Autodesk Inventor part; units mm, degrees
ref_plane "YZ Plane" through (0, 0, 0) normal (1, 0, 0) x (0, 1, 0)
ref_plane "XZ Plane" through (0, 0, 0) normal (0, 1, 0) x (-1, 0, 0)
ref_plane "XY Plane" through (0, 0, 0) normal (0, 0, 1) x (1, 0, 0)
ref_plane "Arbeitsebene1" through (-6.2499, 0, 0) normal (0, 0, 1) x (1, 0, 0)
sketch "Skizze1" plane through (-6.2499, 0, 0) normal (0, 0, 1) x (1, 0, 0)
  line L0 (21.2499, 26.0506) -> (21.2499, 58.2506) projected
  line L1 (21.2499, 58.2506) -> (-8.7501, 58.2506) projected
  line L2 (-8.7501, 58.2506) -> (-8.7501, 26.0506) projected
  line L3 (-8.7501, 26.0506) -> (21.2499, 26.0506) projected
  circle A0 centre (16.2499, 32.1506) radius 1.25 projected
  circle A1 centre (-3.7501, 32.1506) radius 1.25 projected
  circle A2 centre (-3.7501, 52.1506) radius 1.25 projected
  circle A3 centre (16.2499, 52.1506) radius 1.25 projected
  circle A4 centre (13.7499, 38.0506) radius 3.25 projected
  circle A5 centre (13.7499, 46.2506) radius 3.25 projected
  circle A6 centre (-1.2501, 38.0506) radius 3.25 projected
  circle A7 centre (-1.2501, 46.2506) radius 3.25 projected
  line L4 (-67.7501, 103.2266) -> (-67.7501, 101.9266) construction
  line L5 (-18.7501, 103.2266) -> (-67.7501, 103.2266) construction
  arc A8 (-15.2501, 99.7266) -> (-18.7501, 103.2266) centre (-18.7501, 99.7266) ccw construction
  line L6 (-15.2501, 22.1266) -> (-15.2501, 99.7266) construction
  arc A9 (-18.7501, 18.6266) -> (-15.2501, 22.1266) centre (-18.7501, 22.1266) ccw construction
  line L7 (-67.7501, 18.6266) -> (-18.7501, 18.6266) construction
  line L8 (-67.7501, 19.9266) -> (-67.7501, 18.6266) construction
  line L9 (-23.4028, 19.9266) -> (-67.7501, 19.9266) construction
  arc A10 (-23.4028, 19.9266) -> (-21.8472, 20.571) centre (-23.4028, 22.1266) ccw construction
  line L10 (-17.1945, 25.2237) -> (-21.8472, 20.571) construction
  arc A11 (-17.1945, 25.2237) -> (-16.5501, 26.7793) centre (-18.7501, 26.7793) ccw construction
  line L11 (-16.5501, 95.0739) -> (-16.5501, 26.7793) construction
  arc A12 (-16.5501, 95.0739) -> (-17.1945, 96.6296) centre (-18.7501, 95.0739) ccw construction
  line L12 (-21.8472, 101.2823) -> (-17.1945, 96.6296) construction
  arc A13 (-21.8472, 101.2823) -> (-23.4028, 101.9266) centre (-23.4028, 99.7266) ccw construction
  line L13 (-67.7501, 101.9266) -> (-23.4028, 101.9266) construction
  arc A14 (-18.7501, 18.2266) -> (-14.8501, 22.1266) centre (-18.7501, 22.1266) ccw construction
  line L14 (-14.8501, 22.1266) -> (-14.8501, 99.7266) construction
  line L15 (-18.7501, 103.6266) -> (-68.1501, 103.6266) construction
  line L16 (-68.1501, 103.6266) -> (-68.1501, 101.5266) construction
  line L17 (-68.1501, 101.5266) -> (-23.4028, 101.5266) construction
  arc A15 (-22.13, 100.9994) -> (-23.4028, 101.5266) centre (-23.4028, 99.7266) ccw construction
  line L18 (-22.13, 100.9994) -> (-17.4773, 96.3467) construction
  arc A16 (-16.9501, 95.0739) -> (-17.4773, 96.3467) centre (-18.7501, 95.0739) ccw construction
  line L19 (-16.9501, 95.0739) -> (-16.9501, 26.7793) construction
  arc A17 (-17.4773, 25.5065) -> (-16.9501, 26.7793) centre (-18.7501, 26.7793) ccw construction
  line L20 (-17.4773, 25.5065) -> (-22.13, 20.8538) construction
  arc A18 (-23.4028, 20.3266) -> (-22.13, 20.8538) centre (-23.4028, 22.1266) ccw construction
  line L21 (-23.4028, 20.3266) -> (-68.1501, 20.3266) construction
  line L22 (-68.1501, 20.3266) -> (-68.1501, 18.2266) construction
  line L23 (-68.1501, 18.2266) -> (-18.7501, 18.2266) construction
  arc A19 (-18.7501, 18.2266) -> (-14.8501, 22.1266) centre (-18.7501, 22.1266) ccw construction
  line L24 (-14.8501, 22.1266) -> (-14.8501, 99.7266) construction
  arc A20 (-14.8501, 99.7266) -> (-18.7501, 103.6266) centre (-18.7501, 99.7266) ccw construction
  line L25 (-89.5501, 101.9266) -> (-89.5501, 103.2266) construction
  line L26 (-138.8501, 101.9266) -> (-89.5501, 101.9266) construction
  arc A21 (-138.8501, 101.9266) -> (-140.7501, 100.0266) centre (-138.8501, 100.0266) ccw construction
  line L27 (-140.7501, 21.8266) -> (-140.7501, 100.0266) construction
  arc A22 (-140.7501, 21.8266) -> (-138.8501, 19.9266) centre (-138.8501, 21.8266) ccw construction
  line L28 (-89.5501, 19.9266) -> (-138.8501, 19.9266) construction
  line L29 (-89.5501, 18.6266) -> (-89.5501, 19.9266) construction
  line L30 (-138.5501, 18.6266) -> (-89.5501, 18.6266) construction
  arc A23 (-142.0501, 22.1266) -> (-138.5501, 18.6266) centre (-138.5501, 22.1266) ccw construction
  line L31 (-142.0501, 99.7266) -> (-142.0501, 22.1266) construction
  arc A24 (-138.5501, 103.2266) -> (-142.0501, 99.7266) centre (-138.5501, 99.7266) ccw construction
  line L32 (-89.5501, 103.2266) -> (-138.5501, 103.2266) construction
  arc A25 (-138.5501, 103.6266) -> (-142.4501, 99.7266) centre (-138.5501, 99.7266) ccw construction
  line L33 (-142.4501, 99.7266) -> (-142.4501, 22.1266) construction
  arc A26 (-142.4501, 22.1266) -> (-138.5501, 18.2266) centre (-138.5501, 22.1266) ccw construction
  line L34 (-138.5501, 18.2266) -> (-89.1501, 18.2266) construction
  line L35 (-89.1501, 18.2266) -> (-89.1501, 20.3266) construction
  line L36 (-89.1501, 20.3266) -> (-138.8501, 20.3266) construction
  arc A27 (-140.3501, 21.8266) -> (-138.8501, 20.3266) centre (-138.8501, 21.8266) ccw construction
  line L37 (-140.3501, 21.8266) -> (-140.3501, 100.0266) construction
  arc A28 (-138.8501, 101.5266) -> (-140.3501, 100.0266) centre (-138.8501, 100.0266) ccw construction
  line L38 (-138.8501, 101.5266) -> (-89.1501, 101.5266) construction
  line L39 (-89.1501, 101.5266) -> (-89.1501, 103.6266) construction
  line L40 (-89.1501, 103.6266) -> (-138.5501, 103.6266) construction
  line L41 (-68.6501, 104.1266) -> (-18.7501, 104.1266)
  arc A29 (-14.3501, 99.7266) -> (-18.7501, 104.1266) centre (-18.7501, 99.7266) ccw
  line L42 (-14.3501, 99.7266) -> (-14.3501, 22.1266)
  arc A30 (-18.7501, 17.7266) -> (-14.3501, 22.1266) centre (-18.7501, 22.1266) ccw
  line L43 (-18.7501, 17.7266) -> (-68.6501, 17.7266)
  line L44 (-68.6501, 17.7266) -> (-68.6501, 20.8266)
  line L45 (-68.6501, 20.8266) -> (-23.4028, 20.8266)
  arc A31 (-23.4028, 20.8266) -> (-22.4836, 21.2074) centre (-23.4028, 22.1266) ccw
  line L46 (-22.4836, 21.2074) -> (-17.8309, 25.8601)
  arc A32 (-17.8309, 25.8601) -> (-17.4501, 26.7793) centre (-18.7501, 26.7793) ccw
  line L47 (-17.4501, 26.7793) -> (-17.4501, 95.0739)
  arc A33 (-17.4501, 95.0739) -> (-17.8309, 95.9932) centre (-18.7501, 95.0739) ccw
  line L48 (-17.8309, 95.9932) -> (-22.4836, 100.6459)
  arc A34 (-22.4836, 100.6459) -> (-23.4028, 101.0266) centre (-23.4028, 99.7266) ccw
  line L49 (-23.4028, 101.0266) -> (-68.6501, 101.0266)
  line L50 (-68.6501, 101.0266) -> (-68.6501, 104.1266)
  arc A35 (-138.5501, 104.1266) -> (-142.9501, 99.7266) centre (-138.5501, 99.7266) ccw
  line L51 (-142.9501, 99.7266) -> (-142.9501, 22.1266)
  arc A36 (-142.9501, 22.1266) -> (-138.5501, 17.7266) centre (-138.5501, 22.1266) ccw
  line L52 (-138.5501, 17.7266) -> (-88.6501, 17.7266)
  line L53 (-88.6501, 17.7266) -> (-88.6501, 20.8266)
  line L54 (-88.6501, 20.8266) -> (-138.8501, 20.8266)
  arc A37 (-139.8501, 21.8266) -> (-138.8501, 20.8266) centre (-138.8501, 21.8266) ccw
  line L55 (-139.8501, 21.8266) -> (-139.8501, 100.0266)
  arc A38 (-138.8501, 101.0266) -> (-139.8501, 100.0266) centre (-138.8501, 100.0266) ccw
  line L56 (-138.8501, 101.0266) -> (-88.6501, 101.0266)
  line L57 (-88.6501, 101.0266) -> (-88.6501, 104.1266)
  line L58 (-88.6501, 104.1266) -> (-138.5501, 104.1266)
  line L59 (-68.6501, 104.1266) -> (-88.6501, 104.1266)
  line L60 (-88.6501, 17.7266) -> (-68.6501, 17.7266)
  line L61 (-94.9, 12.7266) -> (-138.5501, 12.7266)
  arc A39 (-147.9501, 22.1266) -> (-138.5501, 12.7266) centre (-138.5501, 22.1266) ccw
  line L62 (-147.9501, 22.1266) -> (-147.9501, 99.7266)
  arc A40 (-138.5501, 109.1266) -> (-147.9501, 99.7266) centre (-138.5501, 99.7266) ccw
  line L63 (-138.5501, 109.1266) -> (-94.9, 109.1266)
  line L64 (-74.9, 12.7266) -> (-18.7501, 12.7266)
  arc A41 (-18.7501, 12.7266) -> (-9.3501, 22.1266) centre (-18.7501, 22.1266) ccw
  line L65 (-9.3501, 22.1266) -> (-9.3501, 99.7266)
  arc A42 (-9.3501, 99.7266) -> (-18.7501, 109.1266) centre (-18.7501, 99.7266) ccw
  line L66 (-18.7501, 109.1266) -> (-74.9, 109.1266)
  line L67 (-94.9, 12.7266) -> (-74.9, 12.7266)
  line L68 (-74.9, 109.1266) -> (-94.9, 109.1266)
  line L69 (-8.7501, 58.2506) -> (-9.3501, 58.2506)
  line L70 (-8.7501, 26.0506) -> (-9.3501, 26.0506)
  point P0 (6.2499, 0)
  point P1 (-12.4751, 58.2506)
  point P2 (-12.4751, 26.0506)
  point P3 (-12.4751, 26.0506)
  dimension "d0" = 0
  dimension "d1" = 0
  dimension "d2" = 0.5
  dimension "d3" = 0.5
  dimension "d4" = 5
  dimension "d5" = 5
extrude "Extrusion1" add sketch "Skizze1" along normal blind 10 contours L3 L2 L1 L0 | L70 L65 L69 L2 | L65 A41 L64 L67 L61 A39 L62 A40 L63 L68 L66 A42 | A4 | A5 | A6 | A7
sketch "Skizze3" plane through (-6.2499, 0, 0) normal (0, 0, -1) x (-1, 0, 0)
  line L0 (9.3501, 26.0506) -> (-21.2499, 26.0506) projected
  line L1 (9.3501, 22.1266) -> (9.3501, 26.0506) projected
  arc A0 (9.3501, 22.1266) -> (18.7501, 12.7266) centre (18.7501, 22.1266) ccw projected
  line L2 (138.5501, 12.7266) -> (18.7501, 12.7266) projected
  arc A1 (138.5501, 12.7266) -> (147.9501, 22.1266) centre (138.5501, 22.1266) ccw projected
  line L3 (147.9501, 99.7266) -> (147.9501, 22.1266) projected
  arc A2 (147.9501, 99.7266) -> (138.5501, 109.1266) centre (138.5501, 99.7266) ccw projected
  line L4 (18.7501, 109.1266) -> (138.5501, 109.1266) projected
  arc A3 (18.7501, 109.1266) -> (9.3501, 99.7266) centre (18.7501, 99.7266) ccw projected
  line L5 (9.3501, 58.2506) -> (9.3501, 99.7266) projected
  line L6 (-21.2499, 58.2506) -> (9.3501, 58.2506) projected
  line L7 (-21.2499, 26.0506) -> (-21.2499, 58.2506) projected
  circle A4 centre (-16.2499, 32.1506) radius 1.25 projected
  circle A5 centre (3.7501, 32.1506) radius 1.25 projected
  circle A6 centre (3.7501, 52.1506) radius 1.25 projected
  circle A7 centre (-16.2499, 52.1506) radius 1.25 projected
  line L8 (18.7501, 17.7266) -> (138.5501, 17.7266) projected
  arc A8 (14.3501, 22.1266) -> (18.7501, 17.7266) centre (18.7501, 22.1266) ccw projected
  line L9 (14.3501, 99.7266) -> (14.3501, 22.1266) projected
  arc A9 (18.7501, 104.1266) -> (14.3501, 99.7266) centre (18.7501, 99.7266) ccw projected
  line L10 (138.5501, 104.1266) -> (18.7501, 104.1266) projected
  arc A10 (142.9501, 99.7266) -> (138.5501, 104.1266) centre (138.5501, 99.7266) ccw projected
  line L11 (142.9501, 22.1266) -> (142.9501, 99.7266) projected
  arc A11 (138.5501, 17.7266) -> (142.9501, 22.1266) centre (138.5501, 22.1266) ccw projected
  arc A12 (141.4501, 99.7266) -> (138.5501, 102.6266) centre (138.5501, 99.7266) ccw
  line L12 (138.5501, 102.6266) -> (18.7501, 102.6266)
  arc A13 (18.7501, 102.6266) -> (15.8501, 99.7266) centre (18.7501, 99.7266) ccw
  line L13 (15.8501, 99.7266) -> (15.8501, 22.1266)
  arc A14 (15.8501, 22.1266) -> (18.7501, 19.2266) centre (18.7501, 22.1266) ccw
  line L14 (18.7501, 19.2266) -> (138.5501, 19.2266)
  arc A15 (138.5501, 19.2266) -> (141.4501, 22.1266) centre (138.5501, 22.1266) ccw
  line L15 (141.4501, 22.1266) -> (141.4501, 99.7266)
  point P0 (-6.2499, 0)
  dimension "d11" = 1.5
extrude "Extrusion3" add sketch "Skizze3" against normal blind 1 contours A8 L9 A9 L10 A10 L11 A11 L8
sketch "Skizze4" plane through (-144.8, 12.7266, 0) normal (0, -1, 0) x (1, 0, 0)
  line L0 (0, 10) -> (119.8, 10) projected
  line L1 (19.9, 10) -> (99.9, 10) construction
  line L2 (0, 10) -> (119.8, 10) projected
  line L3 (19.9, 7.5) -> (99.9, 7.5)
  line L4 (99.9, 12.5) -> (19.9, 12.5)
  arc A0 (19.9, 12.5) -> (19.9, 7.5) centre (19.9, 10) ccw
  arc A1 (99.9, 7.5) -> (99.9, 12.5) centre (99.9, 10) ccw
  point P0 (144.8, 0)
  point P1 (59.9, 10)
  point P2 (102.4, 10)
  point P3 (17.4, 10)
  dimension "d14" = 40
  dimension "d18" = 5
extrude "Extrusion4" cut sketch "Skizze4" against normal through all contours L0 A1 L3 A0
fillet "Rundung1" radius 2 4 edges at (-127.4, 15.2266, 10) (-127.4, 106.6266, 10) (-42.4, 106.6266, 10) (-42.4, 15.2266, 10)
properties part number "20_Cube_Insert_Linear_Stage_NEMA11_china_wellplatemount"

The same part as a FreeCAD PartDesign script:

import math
import FreeCAD as App
import Part
import Sketcher
Q = App.Units.Quantity


def edges_at(feature, points):
    """Names of the edges that pass closest to the given points."""
    edges = feature.Shape.Edges
    near = lambda p: min(range(len(edges)), key=lambda i: edges[i].distToShape(Part.Vertex(*p))[0])
    return sorted({f"Edge{near(p) + 1}" for p in points})

doc = App.newDocument("Part")
params = doc.addObject("Spreadsheet::Sheet", "Params")
for row, (alias, value) in enumerate([
    ("sketch1_diameter", "2.5 mm"),
    ("sketch1_radius", "9.4 mm"),
    ("sketch1_width", "30.6 mm"),
    ("sketch1_width2", "119.8 mm"),
    ("sketch1_height", "32.2 mm"),
    ("pad1_length", "10 mm"),
    ("sketch2_radius", "4.4 mm"),
    ("sketch2_radius2", "2.9 mm"),
    ("sketch2_width", "119.8 mm"),
    ("sketch2_height", "77.6 mm"),
    ("pad2_length", "1 mm"),
    ("sketch3_radius", "2.5 mm"),
    ("sketch3_width", "85 mm"),
    ("fillet_radius", "2 mm"),
], start=1):
    params.set(f"A{row}", alias)
    params.set(f"B{row}", "=" + value)
    params.setAlias(f"B{row}", alias)

body = doc.addObject("PartDesign::Body", "Body")

# Sketch on XY plane
sketch1 = body.newObject("Sketcher::SketchObject", "Sketch")
sketch1.AttachmentSupport = (doc.getObject("XY_Plane"), [""])
sketch1.MapMode = "FlatFace"
sketch1.addGeometry([
    Part.LineSegment(App.Vector(15, 26.1, 0), App.Vector(15, 58.3, 0)),  # 0
    Part.LineSegment(App.Vector(15, 58.3, 0), App.Vector(-15.6, 58.3, 0)),  # 1
    Part.LineSegment(App.Vector(-15.6, 58.3, 0), App.Vector(-15.6, 99.7, 0)),  # 2
    Part.ArcOfCircle(Part.Circle(App.Vector(-25, 99.7, 0), App.Vector(0, 0, 1), 9.4), math.radians(0), math.radians(90)),  # 3
    Part.LineSegment(App.Vector(-25, 109.1, 0), App.Vector(-144.8, 109.1, 0)),  # 4
    Part.ArcOfCircle(Part.Circle(App.Vector(-144.8, 99.7, 0), App.Vector(0, 0, 1), 9.4), math.radians(90), math.radians(180)),  # 5
    Part.LineSegment(App.Vector(-154.2, 99.7, 0), App.Vector(-154.2, 22.1, 0)),  # 6
    Part.ArcOfCircle(Part.Circle(App.Vector(-144.8, 22.1, 0), App.Vector(0, 0, 1), 9.4), math.radians(180), math.radians(270)),  # 7
    Part.LineSegment(App.Vector(-144.8, 12.7, 0), App.Vector(-25, 12.7, 0)),  # 8
    Part.ArcOfCircle(Part.Circle(App.Vector(-25, 22.1, 0), App.Vector(0, 0, 1), 9.4), math.radians(-90), math.radians(0)),  # 9
    Part.LineSegment(App.Vector(-15.6, 22.1, 0), App.Vector(-15.6, 26.1, 0)),  # 10
    Part.LineSegment(App.Vector(-15.6, 26.1, 0), App.Vector(15, 26.1, 0)),  # 11
    Part.Circle(App.Vector(-10, 32.2, 0), App.Vector(0, 0, 1), 1.2),  # 12
    Part.Circle(App.Vector(10, 32.2, 0), App.Vector(0, 0, 1), 1.2),  # 13
    Part.Circle(App.Vector(-10, 52.2, 0), App.Vector(0, 0, 1), 1.2),  # 14
    Part.Circle(App.Vector(10, 52.2, 0), App.Vector(0, 0, 1), 1.2),  # 15
    Part.ArcOfCircle(Part.Circle(App.Vector(-25, 99.7, 0), App.Vector(0, 0, 1), 4.4), math.radians(0), math.radians(90)),  # 16
    Part.LineSegment(App.Vector(-20.6, 99.7, 0), App.Vector(-20.6, 22.1, 0)),  # 17
    Part.ArcOfCircle(Part.Circle(App.Vector(-25, 22.1, 0), App.Vector(0, 0, 1), 4.4), math.radians(-90), math.radians(0)),  # 18
    Part.LineSegment(App.Vector(-25, 17.7, 0), App.Vector(-144.8, 17.7, 0)),  # 19
    Part.ArcOfCircle(Part.Circle(App.Vector(-144.8, 22.1, 0), App.Vector(0, 0, 1), 4.4), math.radians(180), math.radians(270)),  # 20
    Part.LineSegment(App.Vector(-149.2, 22.1, 0), App.Vector(-149.2, 99.7, 0)),  # 21
    Part.ArcOfCircle(Part.Circle(App.Vector(-144.8, 99.7, 0), App.Vector(0, 0, 1), 4.4), math.radians(90), math.radians(180)),  # 22
    Part.LineSegment(App.Vector(-144.8, 104.1, 0), App.Vector(-25, 104.1, 0)),  # 23
], False)
sketch1.addConstraint([
    Sketcher.Constraint("Coincident", 0, 2, 1, 1),
    Sketcher.Constraint("Coincident", 1, 2, 2, 1),
    Sketcher.Constraint("Tangent", 2, 2, 3, 1),
    Sketcher.Constraint("Tangent", 3, 2, 4, 1),
    Sketcher.Constraint("Tangent", 4, 2, 5, 1),
    Sketcher.Constraint("Tangent", 5, 2, 6, 1),
    Sketcher.Constraint("Tangent", 6, 2, 7, 1),
    Sketcher.Constraint("Tangent", 7, 2, 8, 1),
    Sketcher.Constraint("Tangent", 8, 2, 9, 1),
    Sketcher.Constraint("Tangent", 9, 2, 10, 1),
    Sketcher.Constraint("Coincident", 10, 2, 11, 1),
    Sketcher.Constraint("Coincident", 11, 2, 0, 1),
    Sketcher.Constraint("Tangent", 16, 1, 17, 1),
    Sketcher.Constraint("Tangent", 17, 2, 18, 2),
    Sketcher.Constraint("Tangent", 18, 1, 19, 1),
    Sketcher.Constraint("Tangent", 19, 2, 20, 2),
    Sketcher.Constraint("Tangent", 20, 1, 21, 1),
    Sketcher.Constraint("Tangent", 21, 2, 22, 2),
    Sketcher.Constraint("Tangent", 22, 1, 23, 1),
    Sketcher.Constraint("Tangent", 23, 2, 16, 2),
    Sketcher.Constraint("Vertical", 0),
    Sketcher.Constraint("Horizontal", 1),
    Sketcher.Constraint("Vertical", 2),
    Sketcher.Constraint("Horizontal", 4),
    Sketcher.Constraint("Vertical", 6),
    Sketcher.Constraint("Horizontal", 8),
    Sketcher.Constraint("Vertical", 10),
    Sketcher.Constraint("Horizontal", 11),
    Sketcher.Constraint("Vertical", 17),
    Sketcher.Constraint("Horizontal", 19),
    Sketcher.Constraint("Vertical", 21),
    Sketcher.Constraint("Horizontal", 23),
    Sketcher.Constraint("Coincident", 16, 3, 3, 3),
    Sketcher.Constraint("Coincident", 18, 3, 9, 3),
    Sketcher.Constraint("Coincident", 20, 3, 7, 3),
    Sketcher.Constraint("Coincident", 22, 3, 5, 3),
    Sketcher.Constraint("Equal", 3, 5),
    Sketcher.Constraint("Equal", 5, 7),
    Sketcher.Constraint("Equal", 7, 9),
    Sketcher.Constraint("Equal", 12, 13),
    Sketcher.Constraint("Equal", 13, 14),
    Sketcher.Constraint("Equal", 14, 15),
    Sketcher.Constraint("Symmetric", 12, 3, 13, 3, -2),
    Sketcher.Constraint("Symmetric", 14, 3, 15, 3, -2),
    Sketcher.Constraint("Vertical", 12, 3, 14, 3),
    Sketcher.Constraint("DistanceX", 15, 3, 0, 2, Q("5 mm")),
    Sketcher.Constraint("DistanceX", 16, 1, 2, 2, Q("5 mm")),
    Sketcher.Constraint("Diameter", 12, Q("2.5 mm")),
    Sketcher.Constraint("Radius", 3, Q("9.4 mm")),
    Sketcher.Constraint("DistanceX", 1, 2, 1, 1, Q("30.6 mm")),
    Sketcher.Constraint("DistanceX", 4, 2, 4, 1, Q("119.8 mm")),
    Sketcher.Constraint("DistanceY", 0, 1, 0, 2, Q("32.2 mm")),
    Sketcher.Constraint("DistanceY", 6, 2, 6, 1, Q("77.6 mm")),
    Sketcher.Constraint("DistanceX", 3, 3, -1, 1, Q("25 mm")),
    Sketcher.Constraint("DistanceY", 12, 3, 14, 3, Q("20 mm")),
    Sketcher.Constraint("DistanceY", 15, 3, 0, 2, Q("6.1 mm")),
    Sketcher.Constraint("DistanceY", 2, 1, 2, 2, Q("41.476 mm")),
    Sketcher.Constraint("DistanceY", -1, 1, 3, 3, Q("99.7266 mm")),
])
sketch1.setExpression("Constraints[47]", "Params.sketch1_diameter")
sketch1.setExpression("Constraints[48]", "Params.sketch1_radius")
sketch1.setExpression("Constraints[49]", "Params.sketch1_width")
sketch1.setExpression("Constraints[50]", "Params.sketch1_width2")
sketch1.setExpression("Constraints[51]", "Params.sketch1_height")
pad1 = body.newObject("PartDesign::Pad", "Pad")
pad1.Profile = sketch1
pad1.setExpression("Length", "Params.pad1_length")

# Sketch on XY plane
sketch2 = body.newObject("Sketcher::SketchObject", "Sketch001")
sketch2.AttachmentSupport = (doc.getObject("XY_Plane"), [""])
sketch2.MapMode = "FlatFace"
sketch2.addGeometry([
    Part.ArcOfCircle(Part.Circle(App.Vector(-25, 22.1, 0), App.Vector(0, 0, 1), 4.4), math.radians(-90), math.radians(0)),  # 0
    Part.LineSegment(App.Vector(-25, 17.7, 0), App.Vector(-144.8, 17.7, 0)),  # 1
    Part.ArcOfCircle(Part.Circle(App.Vector(-144.8, 22.1, 0), App.Vector(0, 0, 1), 4.4), math.radians(180), math.radians(270)),  # 2
    Part.LineSegment(App.Vector(-149.2, 22.1, 0), App.Vector(-149.2, 99.7, 0)),  # 3
    Part.ArcOfCircle(Part.Circle(App.Vector(-144.8, 99.7, 0), App.Vector(0, 0, 1), 4.4), math.radians(90), math.radians(180)),  # 4
    Part.LineSegment(App.Vector(-144.8, 104.1, 0), App.Vector(-25, 104.1, 0)),  # 5
    Part.ArcOfCircle(Part.Circle(App.Vector(-25, 99.7, 0), App.Vector(0, 0, 1), 4.4), math.radians(0), math.radians(90)),  # 6
    Part.LineSegment(App.Vector(-20.6, 99.7, 0), App.Vector(-20.6, 22.1, 0)),  # 7
    Part.ArcOfCircle(Part.Circle(App.Vector(-144.8, 99.7, 0), App.Vector(0, 0, 1), 2.9), math.radians(90), math.radians(180)),  # 8
    Part.LineSegment(App.Vector(-147.7, 99.7, 0), App.Vector(-147.7, 22.1, 0)),  # 9
    Part.ArcOfCircle(Part.Circle(App.Vector(-144.8, 22.1, 0), App.Vector(0, 0, 1), 2.9), math.radians(180), math.radians(270)),  # 10
    Part.LineSegment(App.Vector(-144.8, 19.2, 0), App.Vector(-25, 19.2, 0)),  # 11
    Part.ArcOfCircle(Part.Circle(App.Vector(-25, 22.1, 0), App.Vector(0, 0, 1), 2.9), math.radians(-90), math.radians(0)),  # 12
    Part.LineSegment(App.Vector(-22.1, 22.1, 0), App.Vector(-22.1, 99.7, 0)),  # 13
    Part.ArcOfCircle(Part.Circle(App.Vector(-25, 99.7, 0), App.Vector(0, 0, 1), 2.9), math.radians(0), math.radians(90)),  # 14
    Part.LineSegment(App.Vector(-25, 102.6, 0), App.Vector(-144.8, 102.6, 0)),  # 15
], False)
sketch2.addConstraint([
    Sketcher.Constraint("Tangent", 0, 1, 1, 1),
    Sketcher.Constraint("Tangent", 1, 2, 2, 2),
    Sketcher.Constraint("Tangent", 2, 1, 3, 1),
    Sketcher.Constraint("Tangent", 3, 2, 4, 2),
    Sketcher.Constraint("Tangent", 4, 1, 5, 1),
    Sketcher.Constraint("Tangent", 5, 2, 6, 2),
    Sketcher.Constraint("Tangent", 6, 1, 7, 1),
    Sketcher.Constraint("Tangent", 7, 2, 0, 2),
    Sketcher.Constraint("Tangent", 8, 2, 9, 1),
    Sketcher.Constraint("Tangent", 9, 2, 10, 1),
    Sketcher.Constraint("Tangent", 10, 2, 11, 1),
    Sketcher.Constraint("Tangent", 11, 2, 12, 1),
    Sketcher.Constraint("Tangent", 12, 2, 13, 1),
    Sketcher.Constraint("Tangent", 13, 2, 14, 1),
    Sketcher.Constraint("Tangent", 14, 2, 15, 1),
    Sketcher.Constraint("Tangent", 15, 2, 8, 1),
    Sketcher.Constraint("Horizontal", 1),
    Sketcher.Constraint("Vertical", 3),
    Sketcher.Constraint("Horizontal", 5),
    Sketcher.Constraint("Vertical", 7),
    Sketcher.Constraint("Vertical", 9),
    Sketcher.Constraint("Horizontal", 11),
    Sketcher.Constraint("Vertical", 13),
    Sketcher.Constraint("Horizontal", 15),
    Sketcher.Constraint("Coincident", 8, 3, 4, 3),
    Sketcher.Constraint("Coincident", 10, 3, 2, 3),
    Sketcher.Constraint("Coincident", 12, 3, 0, 3),
    Sketcher.Constraint("Equal", 0, 2),
    Sketcher.Constraint("Equal", 2, 4),
    Sketcher.Constraint("Equal", 4, 6),
    Sketcher.Constraint("Equal", 12, 14),
    Sketcher.Constraint("Radius", 0, Q("4.4 mm")),
    Sketcher.Constraint("Radius", 8, Q("2.9 mm")),
    Sketcher.Constraint("DistanceX", 1, 2, 1, 1, Q("119.8 mm")),
    Sketcher.Constraint("DistanceY", 3, 1, 3, 2, Q("77.6 mm")),
    Sketcher.Constraint("DistanceX", 0, 3, -1, 1, Q("25 mm")),
    Sketcher.Constraint("DistanceY", -1, 1, 0, 3, Q("22.1266 mm")),
])
sketch2.setExpression("Constraints[31]", "Params.sketch2_radius")
sketch2.setExpression("Constraints[32]", "Params.sketch2_radius2")
sketch2.setExpression("Constraints[33]", "Params.sketch2_width")
sketch2.setExpression("Constraints[34]", "Params.sketch2_height")
pad2 = body.newObject("PartDesign::Pad", "Pad001")
pad2.Profile = sketch2
pad2.setExpression("Length", "Params.pad2_length")

# Sketch on XZ plane
sketch3 = body.newObject("Sketcher::SketchObject", "Sketch002")
sketch3.AttachmentSupport = (doc.getObject("XZ_Plane"), [""])
sketch3.MapMode = "FlatFace"
sketch3.AttachmentOffset = App.Placement(App.Vector(0, 0, -12.7266), App.Rotation())
sketch3.addGeometry([
    Part.LineSegment(App.Vector(-42.4, 10, 0), App.Vector(-127.4, 10, 0)),
    Part.ArcOfCircle(Part.Circle(App.Vector(-124.9, 10, 0), App.Vector(0, 0, 1), 2.5), math.radians(180), math.radians(270)),
    Part.LineSegment(App.Vector(-124.9, 7.5, 0), App.Vector(-44.9, 7.5, 0)),
    Part.ArcOfCircle(Part.Circle(App.Vector(-44.9, 10, 0), App.Vector(0, 0, 1), 2.5), math.radians(-90), math.radians(0)),
], False)
sketch3.addConstraint([
    Sketcher.Constraint("Coincident", 0, 2, 1, 1),
    Sketcher.Constraint("Tangent", 1, 2, 2, 1),
    Sketcher.Constraint("Tangent", 2, 2, 3, 1),
    Sketcher.Constraint("Coincident", 3, 2, 0, 1),
    Sketcher.Constraint("Horizontal", 0),
    Sketcher.Constraint("Horizontal", 2),
    Sketcher.Constraint("Equal", 1, 3),
    Sketcher.Constraint("Horizontal", 3, 3, 0, 2),
    Sketcher.Constraint("Radius", 1, Q("2.5 mm")),
    Sketcher.Constraint("DistanceX", 0, 2, 0, 1, Q("85 mm")),
    Sketcher.Constraint("DistanceY", -1, 1, 1, 3, Q("10 mm")),
    Sketcher.Constraint("DistanceX", 1, 3, -1, 1, Q("124.9 mm")),
])
sketch3.setExpression("Constraints[8]", "Params.sketch3_radius")
sketch3.setExpression("Constraints[9]", "Params.sketch3_width")
pocket1 = body.newObject("PartDesign::Pocket", "Pocket")
pocket1.Profile = sketch3
pocket1.Type = "ThroughAll"
doc.recompute()

fillet = body.newObject("PartDesign::Fillet", "Fillet")
fillet.Base = (pocket1, edges_at(pocket1, [
    (-127.4, 15.227, 10),
    (-127.4, 106.627, 10),
    (-42.4, 106.627, 10),
    (-42.4, 15.227, 10),
]))
fillet.setExpression("Radius", "Params.fillet_radius")

doc.recompute()
